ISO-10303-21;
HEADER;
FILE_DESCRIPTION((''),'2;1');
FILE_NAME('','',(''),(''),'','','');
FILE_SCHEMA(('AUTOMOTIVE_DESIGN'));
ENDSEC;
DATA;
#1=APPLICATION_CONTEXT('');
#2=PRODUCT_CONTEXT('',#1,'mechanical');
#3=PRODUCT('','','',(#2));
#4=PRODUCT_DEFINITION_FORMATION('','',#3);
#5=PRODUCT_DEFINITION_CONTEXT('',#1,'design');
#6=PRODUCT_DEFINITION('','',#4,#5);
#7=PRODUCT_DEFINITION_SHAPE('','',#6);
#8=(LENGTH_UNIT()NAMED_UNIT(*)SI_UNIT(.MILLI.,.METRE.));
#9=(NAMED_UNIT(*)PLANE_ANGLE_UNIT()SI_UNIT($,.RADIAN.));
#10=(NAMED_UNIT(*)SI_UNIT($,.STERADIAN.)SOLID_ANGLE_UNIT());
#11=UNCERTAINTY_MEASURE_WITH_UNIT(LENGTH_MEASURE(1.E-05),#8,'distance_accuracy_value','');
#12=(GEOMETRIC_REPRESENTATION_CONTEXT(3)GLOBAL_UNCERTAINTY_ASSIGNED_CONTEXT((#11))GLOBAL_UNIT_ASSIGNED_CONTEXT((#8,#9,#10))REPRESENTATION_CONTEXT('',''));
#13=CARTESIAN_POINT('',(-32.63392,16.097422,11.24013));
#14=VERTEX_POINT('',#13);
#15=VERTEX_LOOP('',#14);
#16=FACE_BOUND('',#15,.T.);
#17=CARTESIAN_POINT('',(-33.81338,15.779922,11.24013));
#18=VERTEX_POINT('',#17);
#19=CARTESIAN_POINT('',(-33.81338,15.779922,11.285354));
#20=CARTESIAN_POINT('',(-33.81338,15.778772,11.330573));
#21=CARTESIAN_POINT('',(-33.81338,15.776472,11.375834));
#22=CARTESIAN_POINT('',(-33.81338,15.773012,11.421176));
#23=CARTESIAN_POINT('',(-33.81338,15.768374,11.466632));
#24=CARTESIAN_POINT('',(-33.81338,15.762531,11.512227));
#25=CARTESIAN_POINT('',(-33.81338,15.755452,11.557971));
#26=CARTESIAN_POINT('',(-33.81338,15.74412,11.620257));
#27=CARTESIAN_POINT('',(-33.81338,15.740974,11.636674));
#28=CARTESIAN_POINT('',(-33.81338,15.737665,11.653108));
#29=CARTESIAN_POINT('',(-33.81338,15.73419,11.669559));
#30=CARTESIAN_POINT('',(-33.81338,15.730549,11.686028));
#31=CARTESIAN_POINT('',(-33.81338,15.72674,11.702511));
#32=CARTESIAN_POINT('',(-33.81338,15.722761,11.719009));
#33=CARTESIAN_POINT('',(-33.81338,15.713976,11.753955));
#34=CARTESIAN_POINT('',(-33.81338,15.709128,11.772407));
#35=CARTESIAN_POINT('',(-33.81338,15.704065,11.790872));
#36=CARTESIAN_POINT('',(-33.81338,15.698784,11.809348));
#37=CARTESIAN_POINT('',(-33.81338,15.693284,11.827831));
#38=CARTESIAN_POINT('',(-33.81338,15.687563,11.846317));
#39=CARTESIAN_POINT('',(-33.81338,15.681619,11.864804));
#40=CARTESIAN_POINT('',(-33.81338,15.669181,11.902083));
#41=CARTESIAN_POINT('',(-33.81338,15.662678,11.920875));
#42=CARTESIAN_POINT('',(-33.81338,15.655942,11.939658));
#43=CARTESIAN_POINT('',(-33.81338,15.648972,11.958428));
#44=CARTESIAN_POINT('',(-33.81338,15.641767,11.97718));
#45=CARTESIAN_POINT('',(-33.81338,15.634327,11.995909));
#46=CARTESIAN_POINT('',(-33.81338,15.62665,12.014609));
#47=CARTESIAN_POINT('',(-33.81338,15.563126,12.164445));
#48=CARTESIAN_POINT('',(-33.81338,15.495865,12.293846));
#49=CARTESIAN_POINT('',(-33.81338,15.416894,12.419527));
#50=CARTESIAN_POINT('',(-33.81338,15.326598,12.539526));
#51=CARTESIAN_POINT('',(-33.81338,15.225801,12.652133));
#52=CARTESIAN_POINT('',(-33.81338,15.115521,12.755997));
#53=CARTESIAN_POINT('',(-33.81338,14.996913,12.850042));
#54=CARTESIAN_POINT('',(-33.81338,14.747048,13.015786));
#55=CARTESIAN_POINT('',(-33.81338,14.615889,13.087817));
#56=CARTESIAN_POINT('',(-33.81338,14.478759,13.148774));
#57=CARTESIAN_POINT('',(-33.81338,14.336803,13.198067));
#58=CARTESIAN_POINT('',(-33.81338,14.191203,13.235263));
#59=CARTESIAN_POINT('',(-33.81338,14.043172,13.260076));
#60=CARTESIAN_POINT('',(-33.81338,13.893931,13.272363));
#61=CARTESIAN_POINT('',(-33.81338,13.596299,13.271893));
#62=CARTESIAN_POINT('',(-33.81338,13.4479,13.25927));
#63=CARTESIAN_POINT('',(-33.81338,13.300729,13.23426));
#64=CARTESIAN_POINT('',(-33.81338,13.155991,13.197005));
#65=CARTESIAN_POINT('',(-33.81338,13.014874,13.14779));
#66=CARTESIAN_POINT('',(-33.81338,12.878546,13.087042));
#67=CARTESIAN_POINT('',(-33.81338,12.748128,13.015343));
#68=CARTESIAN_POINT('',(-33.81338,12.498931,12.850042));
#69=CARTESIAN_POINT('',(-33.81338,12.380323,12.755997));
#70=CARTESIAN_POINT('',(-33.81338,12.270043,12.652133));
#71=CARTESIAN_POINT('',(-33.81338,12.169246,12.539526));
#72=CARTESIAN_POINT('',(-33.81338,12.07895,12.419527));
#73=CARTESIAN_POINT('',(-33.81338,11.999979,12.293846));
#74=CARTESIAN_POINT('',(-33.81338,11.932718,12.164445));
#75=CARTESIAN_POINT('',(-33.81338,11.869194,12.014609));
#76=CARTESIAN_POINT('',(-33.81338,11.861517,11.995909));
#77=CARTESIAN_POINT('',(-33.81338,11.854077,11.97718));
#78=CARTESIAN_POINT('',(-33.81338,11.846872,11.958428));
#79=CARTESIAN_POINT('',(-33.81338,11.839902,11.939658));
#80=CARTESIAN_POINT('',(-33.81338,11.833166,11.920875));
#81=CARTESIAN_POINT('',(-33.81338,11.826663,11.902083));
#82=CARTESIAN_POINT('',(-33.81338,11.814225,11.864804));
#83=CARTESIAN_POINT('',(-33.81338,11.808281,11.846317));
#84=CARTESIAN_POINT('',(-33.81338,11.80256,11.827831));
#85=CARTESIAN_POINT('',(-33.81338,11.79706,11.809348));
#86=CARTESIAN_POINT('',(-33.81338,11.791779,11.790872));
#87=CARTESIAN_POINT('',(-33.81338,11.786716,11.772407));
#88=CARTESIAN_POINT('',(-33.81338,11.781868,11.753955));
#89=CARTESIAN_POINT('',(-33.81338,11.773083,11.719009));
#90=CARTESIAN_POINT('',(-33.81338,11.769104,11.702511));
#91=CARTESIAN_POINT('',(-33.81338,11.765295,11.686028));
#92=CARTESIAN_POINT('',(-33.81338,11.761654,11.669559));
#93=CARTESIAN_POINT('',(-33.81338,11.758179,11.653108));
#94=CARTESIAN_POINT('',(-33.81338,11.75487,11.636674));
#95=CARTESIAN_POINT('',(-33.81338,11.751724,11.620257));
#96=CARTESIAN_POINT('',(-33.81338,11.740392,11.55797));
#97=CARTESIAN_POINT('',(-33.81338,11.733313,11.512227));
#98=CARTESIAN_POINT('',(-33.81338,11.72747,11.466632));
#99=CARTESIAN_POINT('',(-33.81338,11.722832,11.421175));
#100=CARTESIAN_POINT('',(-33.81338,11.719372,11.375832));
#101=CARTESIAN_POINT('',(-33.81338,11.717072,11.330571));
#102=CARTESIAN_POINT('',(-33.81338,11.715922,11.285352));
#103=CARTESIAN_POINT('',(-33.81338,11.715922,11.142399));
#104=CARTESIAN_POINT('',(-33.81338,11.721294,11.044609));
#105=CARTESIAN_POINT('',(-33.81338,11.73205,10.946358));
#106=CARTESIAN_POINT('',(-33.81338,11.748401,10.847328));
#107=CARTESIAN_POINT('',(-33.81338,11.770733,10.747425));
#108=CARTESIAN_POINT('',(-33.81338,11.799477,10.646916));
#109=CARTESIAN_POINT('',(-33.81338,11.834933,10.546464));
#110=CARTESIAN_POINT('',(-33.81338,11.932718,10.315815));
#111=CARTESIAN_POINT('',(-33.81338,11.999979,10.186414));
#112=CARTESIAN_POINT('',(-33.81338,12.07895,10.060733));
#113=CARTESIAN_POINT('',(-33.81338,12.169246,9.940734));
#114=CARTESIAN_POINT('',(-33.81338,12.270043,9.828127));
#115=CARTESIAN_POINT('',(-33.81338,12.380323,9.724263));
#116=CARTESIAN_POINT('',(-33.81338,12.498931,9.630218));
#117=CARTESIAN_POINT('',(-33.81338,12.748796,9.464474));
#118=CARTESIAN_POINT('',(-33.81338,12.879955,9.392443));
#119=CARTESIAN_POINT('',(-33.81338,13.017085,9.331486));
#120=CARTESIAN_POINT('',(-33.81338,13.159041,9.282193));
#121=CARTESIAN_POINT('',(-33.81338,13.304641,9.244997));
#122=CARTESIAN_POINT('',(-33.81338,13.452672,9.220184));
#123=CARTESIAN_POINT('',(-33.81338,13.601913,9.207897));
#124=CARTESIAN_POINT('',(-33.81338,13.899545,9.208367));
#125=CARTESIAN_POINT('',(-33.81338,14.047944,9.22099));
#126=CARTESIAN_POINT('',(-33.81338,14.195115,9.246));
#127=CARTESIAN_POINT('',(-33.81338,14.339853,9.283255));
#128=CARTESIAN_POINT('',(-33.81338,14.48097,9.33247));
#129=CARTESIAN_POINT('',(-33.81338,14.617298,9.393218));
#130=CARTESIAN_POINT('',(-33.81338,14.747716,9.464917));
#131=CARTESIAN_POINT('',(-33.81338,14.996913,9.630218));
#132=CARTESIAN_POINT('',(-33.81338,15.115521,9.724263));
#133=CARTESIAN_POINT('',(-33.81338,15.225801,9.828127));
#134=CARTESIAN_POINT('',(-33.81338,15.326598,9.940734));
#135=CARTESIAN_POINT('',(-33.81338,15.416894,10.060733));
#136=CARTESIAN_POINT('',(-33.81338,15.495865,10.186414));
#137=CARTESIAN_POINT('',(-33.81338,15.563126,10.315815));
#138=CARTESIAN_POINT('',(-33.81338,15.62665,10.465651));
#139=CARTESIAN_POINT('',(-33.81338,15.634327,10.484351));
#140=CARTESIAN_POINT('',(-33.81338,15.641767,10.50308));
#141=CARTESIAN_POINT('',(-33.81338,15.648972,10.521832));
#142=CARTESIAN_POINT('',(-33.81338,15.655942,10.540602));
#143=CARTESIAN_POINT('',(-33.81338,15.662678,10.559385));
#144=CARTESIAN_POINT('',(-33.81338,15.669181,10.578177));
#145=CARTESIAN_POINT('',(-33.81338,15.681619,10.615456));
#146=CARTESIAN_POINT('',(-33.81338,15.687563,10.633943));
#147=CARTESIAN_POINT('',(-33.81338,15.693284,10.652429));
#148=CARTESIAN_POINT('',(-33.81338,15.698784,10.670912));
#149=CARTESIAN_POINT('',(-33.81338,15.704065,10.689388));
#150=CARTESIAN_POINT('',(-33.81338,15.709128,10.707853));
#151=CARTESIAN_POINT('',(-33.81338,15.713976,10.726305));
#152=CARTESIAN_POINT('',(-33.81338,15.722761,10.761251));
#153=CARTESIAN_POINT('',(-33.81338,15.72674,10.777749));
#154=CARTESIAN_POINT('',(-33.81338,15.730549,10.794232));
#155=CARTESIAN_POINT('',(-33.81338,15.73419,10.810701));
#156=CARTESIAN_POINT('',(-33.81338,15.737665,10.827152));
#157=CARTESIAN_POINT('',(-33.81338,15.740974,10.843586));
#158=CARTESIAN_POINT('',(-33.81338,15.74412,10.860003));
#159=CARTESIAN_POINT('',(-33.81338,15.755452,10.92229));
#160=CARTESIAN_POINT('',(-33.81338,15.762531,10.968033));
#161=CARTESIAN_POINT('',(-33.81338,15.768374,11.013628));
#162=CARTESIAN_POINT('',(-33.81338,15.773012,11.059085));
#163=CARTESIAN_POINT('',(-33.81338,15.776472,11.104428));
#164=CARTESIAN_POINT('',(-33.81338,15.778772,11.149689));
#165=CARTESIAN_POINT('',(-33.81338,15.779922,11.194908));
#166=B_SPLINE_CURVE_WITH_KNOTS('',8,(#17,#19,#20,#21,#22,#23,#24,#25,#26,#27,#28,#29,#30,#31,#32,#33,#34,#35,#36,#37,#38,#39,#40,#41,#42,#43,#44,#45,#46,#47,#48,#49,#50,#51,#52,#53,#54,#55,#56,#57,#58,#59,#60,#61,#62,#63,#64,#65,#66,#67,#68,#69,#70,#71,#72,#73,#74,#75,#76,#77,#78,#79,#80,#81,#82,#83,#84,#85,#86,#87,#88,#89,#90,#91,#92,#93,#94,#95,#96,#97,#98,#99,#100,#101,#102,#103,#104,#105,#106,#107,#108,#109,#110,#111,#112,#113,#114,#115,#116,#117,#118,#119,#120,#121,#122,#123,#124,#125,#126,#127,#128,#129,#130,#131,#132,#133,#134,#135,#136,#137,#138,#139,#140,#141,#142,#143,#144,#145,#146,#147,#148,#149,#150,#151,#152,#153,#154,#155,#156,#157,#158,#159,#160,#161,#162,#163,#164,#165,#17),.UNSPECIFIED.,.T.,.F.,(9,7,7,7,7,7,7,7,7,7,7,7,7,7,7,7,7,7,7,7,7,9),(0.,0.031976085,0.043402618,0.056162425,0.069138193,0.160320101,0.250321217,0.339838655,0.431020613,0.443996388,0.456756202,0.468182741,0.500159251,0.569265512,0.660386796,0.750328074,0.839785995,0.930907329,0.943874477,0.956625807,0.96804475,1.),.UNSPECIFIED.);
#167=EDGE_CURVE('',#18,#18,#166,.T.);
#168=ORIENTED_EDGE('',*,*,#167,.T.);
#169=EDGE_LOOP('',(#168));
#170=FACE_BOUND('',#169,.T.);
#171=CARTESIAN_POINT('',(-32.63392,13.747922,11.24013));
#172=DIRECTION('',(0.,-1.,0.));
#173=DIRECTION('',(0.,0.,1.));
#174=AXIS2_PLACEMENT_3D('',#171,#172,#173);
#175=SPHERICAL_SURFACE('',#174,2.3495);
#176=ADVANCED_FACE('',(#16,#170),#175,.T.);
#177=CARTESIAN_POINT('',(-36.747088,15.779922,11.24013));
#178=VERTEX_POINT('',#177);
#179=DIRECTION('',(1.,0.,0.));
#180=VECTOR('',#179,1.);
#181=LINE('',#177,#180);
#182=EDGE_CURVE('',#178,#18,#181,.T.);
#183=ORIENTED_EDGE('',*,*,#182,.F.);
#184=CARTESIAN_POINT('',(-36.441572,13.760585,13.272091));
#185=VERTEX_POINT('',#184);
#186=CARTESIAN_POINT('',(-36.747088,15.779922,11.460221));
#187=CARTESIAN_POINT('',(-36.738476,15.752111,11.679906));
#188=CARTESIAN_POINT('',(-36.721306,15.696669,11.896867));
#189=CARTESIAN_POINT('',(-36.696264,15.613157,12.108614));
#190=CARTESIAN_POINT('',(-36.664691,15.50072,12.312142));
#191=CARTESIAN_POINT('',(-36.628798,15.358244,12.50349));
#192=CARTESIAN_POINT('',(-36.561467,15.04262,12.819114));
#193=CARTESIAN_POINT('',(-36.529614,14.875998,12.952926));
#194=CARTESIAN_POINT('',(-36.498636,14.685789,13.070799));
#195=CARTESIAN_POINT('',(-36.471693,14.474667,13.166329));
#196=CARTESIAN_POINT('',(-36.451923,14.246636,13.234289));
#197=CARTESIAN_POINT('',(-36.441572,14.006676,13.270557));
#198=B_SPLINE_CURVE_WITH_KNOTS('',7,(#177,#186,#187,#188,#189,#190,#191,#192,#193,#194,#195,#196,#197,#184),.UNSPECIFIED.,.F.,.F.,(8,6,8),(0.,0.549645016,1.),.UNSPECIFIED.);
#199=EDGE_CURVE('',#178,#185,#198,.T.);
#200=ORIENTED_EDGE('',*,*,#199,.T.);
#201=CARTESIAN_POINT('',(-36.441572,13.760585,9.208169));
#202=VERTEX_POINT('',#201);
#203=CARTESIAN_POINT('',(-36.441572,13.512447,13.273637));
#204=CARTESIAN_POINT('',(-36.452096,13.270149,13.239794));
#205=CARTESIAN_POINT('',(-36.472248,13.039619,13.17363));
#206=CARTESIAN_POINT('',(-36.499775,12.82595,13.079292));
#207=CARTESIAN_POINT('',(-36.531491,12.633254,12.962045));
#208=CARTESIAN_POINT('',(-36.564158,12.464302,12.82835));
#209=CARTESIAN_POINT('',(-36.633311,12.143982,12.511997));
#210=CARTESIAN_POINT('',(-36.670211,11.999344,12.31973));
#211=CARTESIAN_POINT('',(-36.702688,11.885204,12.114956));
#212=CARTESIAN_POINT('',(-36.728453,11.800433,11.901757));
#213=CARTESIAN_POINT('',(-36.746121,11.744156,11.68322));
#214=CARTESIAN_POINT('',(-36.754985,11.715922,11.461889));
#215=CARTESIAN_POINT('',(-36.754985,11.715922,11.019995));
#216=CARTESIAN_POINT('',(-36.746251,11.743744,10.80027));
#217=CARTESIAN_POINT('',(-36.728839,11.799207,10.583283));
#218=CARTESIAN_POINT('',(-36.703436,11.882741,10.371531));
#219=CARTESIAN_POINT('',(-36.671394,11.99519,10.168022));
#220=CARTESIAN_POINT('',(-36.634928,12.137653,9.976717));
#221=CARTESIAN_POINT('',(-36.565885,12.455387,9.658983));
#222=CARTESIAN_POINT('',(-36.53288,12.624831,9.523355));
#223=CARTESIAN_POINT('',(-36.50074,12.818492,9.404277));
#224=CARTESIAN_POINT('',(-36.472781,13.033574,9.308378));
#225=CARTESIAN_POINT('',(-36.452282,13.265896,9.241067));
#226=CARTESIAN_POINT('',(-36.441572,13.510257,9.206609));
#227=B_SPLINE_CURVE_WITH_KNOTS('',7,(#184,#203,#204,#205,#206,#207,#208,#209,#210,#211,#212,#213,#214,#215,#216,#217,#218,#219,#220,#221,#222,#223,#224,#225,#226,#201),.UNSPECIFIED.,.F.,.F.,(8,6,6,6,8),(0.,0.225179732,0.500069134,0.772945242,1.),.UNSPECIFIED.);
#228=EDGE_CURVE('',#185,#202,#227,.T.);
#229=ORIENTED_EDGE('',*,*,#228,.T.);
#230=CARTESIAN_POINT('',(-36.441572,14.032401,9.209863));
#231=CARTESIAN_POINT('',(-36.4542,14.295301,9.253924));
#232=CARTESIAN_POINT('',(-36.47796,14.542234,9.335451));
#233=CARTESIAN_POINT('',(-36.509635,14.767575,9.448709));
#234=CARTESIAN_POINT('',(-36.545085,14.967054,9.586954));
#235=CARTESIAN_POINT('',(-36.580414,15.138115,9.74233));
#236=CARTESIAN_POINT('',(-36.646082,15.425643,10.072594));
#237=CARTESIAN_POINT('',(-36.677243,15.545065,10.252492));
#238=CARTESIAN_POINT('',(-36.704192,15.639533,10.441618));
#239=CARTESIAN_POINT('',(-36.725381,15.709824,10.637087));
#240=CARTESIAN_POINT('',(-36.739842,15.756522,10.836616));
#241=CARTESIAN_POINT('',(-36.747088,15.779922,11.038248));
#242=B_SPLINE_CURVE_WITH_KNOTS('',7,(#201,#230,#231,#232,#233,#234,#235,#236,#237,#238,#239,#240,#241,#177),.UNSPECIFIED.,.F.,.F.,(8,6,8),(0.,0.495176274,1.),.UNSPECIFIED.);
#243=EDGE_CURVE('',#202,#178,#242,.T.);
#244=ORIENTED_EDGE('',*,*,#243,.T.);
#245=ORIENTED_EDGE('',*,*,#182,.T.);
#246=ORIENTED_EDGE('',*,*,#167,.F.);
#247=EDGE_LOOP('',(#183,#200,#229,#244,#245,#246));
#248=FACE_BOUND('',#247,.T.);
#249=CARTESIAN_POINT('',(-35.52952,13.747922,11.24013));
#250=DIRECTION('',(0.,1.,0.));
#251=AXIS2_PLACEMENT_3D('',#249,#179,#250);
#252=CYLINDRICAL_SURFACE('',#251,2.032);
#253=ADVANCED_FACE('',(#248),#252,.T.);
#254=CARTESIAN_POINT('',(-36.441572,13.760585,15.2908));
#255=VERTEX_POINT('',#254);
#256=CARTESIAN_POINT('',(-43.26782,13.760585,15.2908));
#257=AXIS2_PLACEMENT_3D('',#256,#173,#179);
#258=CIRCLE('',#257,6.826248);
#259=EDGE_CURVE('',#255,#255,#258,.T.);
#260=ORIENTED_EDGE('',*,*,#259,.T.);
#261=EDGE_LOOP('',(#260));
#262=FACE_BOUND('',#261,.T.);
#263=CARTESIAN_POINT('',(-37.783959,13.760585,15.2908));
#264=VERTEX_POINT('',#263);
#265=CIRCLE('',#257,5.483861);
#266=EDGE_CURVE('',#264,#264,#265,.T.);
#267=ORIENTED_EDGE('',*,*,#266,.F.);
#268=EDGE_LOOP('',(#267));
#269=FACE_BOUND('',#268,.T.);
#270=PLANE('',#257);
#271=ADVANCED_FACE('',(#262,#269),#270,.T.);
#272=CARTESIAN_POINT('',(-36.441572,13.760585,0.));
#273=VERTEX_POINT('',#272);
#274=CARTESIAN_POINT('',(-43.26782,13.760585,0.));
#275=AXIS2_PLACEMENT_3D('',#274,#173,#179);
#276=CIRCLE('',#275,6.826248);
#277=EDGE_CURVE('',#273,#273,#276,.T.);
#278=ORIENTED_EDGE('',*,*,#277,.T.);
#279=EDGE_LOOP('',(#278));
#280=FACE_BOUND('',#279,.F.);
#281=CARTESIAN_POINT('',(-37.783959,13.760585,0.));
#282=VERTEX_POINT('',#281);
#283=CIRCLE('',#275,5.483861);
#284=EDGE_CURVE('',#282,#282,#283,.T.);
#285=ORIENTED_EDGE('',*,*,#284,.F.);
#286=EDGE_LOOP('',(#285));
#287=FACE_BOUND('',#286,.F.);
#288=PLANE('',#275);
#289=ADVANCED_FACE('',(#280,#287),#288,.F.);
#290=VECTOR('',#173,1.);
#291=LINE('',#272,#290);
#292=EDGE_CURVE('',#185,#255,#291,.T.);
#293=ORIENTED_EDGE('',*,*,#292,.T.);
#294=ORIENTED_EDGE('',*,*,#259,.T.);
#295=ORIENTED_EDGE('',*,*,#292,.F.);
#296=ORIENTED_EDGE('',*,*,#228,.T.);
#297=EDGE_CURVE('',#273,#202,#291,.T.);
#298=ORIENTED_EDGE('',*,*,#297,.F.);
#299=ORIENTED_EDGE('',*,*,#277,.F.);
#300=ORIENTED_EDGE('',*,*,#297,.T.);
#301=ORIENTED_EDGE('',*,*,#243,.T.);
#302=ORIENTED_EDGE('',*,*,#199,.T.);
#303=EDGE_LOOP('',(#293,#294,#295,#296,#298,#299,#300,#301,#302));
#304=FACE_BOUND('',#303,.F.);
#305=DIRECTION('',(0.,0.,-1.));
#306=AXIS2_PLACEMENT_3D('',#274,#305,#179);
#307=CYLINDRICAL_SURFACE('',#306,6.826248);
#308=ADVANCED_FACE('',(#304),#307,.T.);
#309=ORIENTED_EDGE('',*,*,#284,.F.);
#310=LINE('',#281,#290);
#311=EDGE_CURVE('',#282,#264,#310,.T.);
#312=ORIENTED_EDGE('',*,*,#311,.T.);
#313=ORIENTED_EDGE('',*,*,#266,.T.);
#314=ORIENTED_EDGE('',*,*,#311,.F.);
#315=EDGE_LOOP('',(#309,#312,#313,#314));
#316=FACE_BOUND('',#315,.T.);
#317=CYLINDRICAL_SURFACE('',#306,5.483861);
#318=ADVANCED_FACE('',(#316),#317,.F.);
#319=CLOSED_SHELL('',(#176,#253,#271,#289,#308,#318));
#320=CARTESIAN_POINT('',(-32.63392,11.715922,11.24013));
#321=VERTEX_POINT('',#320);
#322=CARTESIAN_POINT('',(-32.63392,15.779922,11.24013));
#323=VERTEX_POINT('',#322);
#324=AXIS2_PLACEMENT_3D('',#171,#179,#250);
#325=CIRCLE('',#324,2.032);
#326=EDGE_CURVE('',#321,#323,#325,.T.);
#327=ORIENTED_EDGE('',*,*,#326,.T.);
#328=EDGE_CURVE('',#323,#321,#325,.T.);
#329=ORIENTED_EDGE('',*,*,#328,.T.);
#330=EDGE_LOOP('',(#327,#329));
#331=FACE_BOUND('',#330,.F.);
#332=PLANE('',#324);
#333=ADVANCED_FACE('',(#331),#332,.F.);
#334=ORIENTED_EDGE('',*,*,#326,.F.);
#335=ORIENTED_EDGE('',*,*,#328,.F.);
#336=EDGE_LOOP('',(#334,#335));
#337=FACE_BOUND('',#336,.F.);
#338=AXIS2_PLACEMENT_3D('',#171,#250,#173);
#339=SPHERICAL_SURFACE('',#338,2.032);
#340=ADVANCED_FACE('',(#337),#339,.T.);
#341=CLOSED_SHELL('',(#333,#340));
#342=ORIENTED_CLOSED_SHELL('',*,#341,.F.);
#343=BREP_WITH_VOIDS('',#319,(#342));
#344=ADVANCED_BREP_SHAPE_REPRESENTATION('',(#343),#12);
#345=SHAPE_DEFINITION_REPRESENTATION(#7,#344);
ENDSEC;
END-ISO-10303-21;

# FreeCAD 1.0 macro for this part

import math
import FreeCAD as App
import Part
import Sketcher
Q = App.Units.Quantity

doc = App.newDocument("Part")
body = doc.addObject("PartDesign::Body", "Body")

# Sketch on XY plane
sketch1 = body.newObject("Sketcher::SketchObject", "Sketch")
sketch1.AttachmentSupport = (doc.getObject("XY_Plane"), [""])
sketch1.MapMode = "FlatFace"
sketch1.addGeometry(Part.Circle(App.Vector(-43.26782, 13.760585, 0), App.Vector(0, 0, 1), 6.826248), False)
sketch1.addGeometry(Part.Circle(App.Vector(-43.26782, 13.760585, 0), App.Vector(0, 0, 1), 5.483861), False)
sketch1.addConstraint(Sketcher.Constraint("Coincident", 1, 3, 0, 3))
sketch1.addConstraint(Sketcher.Constraint("Diameter", 0, Q("0.5374998 in")))
sketch1.addConstraint(Sketcher.Constraint("Diameter", 1, Q("0.4318001 in")))
sketch1.addConstraint(Sketcher.Constraint("DistanceX", 0, 3, -1, 1, Q("43.26782 mm")))
sketch1.addConstraint(Sketcher.Constraint("DistanceY", -1, 1, 0, 3, Q("13.760585 mm")))
pad1 = body.newObject("PartDesign::Pad", "Pad")
pad1.Profile = sketch1
pad1.Length = Q("0.602 in")

# Sketch on YZ plane
sketch2 = body.newObject("Sketcher::SketchObject", "Sketch001")
sketch2.AttachmentSupport = (doc.getObject("YZ_Plane"), [""])
sketch2.MapMode = "FlatFace"
sketch2.AttachmentOffset = App.Placement(App.Vector(0, 0, -1.3988 * 25.4), App.Rotation())
sketch2.addGeometry(Part.Circle(App.Vector(13.747922, 11.24013, 0), App.Vector(0, 0, 1), 2.032), False)
sketch2.addConstraint(Sketcher.Constraint("Diameter", 0, Q("0.16 in")))
sketch2.addConstraint(Sketcher.Constraint("DistanceY", -1, 1, 0, 3, Q("11.24013 mm")))
sketch2.addConstraint(Sketcher.Constraint("DistanceX", -1, 1, 0, 3, Q("13.747922 mm")))
pad2 = body.newObject("PartDesign::Pad", "Pad001")
pad2.Profile = sketch2
pad2.Type = "TwoLengths"
pad2.Length = Q("0.114 in")
pad2.Length2 = Q("0.064 in")

# Sketch on YZ plane
sketch3 = body.newObject("Sketcher::SketchObject", "Sketch002")
sketch3.AttachmentSupport = (doc.getObject("YZ_Plane"), [""])
sketch3.MapMode = "FlatFace"
sketch3.AttachmentOffset = App.Placement(App.Vector(0, 0, -1.2848 * 25.4), App.Rotation())
sketch3.addGeometry(Part.LineSegment(App.Vector(11.398422, 11.24013, 0), App.Vector(11.715922, 11.24013, 0)), False)
sketch3.addGeometry(Part.ArcOfCircle(Part.Circle(App.Vector(13.747922, 11.24013, 0), App.Vector(0, 0, 1), 2.032), math.radians(0), math.radians(180)), False)
sketch3.addGeometry(Part.LineSegment(App.Vector(15.779922, 11.24013, 0), App.Vector(16.097422, 11.24013, 0)), False)
sketch3.addGeometry(Part.ArcOfCircle(Part.Circle(App.Vector(13.747922, 11.24013, 0), App.Vector(0, 0, 1), 2.3495), math.radians(0), math.radians(180)), False)
sketch3.addGeometry(Part.LineSegment(App.Vector(16.097422, 11.24013, 0), App.Vector(11.398422, 11.24013, 0)), True)  # axis
sketch3.addConstraint(Sketcher.Constraint("Coincident", 0, 2, 1, 2))
sketch3.addConstraint(Sketcher.Constraint("Coincident", 1, 1, 2, 1))
sketch3.addConstraint(Sketcher.Constraint("Coincident", 2, 2, 3, 1))
sketch3.addConstraint(Sketcher.Constraint("Coincident", 3, 2, 0, 1))
sketch3.addConstraint(Sketcher.Constraint("Horizontal", 0))
sketch3.addConstraint(Sketcher.Constraint("Horizontal", 2))
sketch3.addConstraint(Sketcher.Constraint("Horizontal", 4))
sketch3.addConstraint(Sketcher.Constraint("Coincident", 3, 3, 1, 3))
sketch3.addConstraint(Sketcher.Constraint("Coincident", 4, 1, 2, 2))
sketch3.addConstraint(Sketcher.Constraint("Coincident", 4, 2, 3, 2))
sketch3.addConstraint(Sketcher.Constraint("Horizontal", 3, 3, 0, 2))
sketch3.addConstraint(Sketcher.Constraint("Radius", 1, Q("0.08 in")))
sketch3.addConstraint(Sketcher.Constraint("Radius", 3, Q("0.0925 in")))
sketch3.addConstraint(Sketcher.Constraint("DistanceY", -1, 1, 1, 3, Q("11.24013 mm")))
sketch3.addConstraint(Sketcher.Constraint("DistanceX", -1, 1, 1, 3, Q("13.747922 mm")))
revolution = body.newObject("PartDesign::Revolution", "Revolution")
revolution.Profile = sketch3
revolution.ReferenceAxis = (sketch3, ["Axis0"])
revolution.Angle = 360

doc.recompute()
